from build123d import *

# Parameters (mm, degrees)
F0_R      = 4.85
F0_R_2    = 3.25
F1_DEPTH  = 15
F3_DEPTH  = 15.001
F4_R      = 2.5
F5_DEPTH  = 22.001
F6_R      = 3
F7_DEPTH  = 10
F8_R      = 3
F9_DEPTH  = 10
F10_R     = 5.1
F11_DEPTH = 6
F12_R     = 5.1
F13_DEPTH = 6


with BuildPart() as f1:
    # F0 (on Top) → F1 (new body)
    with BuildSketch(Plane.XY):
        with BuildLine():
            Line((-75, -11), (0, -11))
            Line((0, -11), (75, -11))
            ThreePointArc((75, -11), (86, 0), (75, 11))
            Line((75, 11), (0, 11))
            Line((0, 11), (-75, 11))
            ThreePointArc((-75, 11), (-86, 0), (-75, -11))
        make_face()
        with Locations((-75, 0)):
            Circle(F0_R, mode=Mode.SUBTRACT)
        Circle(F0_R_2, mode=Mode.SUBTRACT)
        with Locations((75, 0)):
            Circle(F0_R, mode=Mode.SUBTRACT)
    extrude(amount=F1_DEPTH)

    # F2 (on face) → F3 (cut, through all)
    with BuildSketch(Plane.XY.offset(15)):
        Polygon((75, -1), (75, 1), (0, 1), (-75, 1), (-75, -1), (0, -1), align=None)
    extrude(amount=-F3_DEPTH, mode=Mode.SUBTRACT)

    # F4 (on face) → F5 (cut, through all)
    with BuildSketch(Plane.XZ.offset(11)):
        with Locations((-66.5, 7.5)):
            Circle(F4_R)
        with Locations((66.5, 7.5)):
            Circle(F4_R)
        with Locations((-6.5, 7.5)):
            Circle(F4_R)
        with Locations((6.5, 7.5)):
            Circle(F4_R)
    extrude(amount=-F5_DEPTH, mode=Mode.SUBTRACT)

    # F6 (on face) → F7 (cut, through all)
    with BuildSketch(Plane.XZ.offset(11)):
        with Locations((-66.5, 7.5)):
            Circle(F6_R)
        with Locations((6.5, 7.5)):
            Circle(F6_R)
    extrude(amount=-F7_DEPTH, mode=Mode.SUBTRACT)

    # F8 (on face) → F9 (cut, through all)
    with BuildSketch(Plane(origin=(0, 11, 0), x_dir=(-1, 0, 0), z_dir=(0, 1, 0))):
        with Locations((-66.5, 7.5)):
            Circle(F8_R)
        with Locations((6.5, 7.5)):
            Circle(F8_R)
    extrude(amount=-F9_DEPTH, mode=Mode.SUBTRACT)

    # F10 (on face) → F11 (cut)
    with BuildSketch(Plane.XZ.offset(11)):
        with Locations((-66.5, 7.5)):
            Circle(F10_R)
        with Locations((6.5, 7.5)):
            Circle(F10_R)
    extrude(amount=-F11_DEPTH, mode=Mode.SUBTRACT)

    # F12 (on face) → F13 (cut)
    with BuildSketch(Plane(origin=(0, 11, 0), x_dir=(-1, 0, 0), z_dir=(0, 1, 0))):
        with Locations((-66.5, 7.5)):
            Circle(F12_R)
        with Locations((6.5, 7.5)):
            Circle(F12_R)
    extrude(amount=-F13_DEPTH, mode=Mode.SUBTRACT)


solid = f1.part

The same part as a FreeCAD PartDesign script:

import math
import FreeCAD as App
import Part
import Sketcher

V = App.Vector
Q = App.Units.Quantity

doc = App.newDocument("Part")
params = doc.addObject("Spreadsheet::Sheet", "Params")
for row, (alias, value) in enumerate([
    ("sketch1_radius", "11 mm"),
    ("sketch1_diameter", "9.7 mm"),
    ("sketch1_diameter2", "6.5 mm"),
    ("sketch1_width", "150 mm"),
    ("pad1_length", "15 mm"),
    ("sketch2_width", "150 mm"),
    ("sketch2_height", "2 mm"),
    ("sketch3_diameter", "5 mm"),
    ("sketch4_diameter", "6 mm"),
    ("pocket3_length", "10 mm"),
    ("sketch5_diameter", "6 mm"),
    ("pocket4_length", "10 mm"),
    ("sketch6_diameter", "10.2 mm"),
    ("pocket5_length", "6 mm"),
    ("sketch7_diameter", "10.2 mm"),
    ("pocket6_length", "6 mm"),
], start=1):
    params.set(f"A{row}", alias)
    params.set(f"B{row}", "=" + value)
    params.setAlias(f"B{row}", alias)

body = doc.addObject("PartDesign::Body", "Body")

# Sketch on XY plane
sketch1 = body.newObject("Sketcher::SketchObject", "Sketch")
sketch1.AttachmentSupport = (doc.getObject("XY_Plane"), [""])
sketch1.MapMode = "FlatFace"
sketch1.addGeometry(Part.LineSegment(V(-75, -11, 0), V(75, -11, 0)), False)
sketch1.addGeometry(Part.ArcOfCircle(Part.Circle(V(75, 0, 0), V(0, 0, 1), 11), math.radians(-90), math.radians(90)), False)
sketch1.addGeometry(Part.LineSegment(V(75, 11, 0), V(-75, 11, 0)), False)
sketch1.addGeometry(Part.ArcOfCircle(Part.Circle(V(-75, 0, 0), V(0, 0, 1), 11), math.radians(90), math.radians(270)), False)
sketch1.addGeometry(Part.Circle(V(-75, 0, 0), V(0, 0, 1), 4.8), False)
sketch1.addGeometry(Part.Circle(V(0, 0, 0), V(0, 0, 1), 3.2), False)
sketch1.addGeometry(Part.Circle(V(75, 0, 0), V(0, 0, 1), 4.8), False)
sketch1.addConstraint(Sketcher.Constraint("Tangent", 0, 2, 1, 1))
sketch1.addConstraint(Sketcher.Constraint("Tangent", 1, 2, 2, 1))
sketch1.addConstraint(Sketcher.Constraint("Tangent", 2, 2, 3, 1))
sketch1.addConstraint(Sketcher.Constraint("Tangent", 3, 2, 0, 1))
sketch1.addConstraint(Sketcher.Constraint("Horizontal", 0))
sketch1.addConstraint(Sketcher.Constraint("Horizontal", 2))
sketch1.addConstraint(Sketcher.Constraint("Coincident", 5, 3, -1, 1))
sketch1.addConstraint(Sketcher.Constraint("Coincident", 4, 3, 3, 3))
sketch1.addConstraint(Sketcher.Constraint("Coincident", 6, 3, 1, 3))
sketch1.addConstraint(Sketcher.Constraint("Equal", 4, 6))
sketch1.addConstraint(Sketcher.Constraint("Symmetric", 1, 3, 3, 3, -1, 1))
sketch1.addConstraint(Sketcher.Constraint("Radius", 1, Q("11 mm")))
sketch1.addConstraint(Sketcher.Constraint("Diameter", 4, Q("9.7 mm")))
sketch1.addConstraint(Sketcher.Constraint("Diameter", 5, Q("6.5 mm")))
sketch1.addConstraint(Sketcher.Constraint("DistanceX", 0, 1, 0, 2, Q("150 mm")))
sketch1.setExpression("Constraints[11]", "Params.sketch1_radius")
sketch1.setExpression("Constraints[12]", "Params.sketch1_diameter")
sketch1.setExpression("Constraints[13]", "Params.sketch1_diameter2")
sketch1.setExpression("Constraints[14]", "Params.sketch1_width")
pad1 = body.newObject("PartDesign::Pad", "Pad")
pad1.Profile = sketch1
pad1.setExpression("Length", "Params.pad1_length")

# Sketch on XY plane
sketch2 = body.newObject("Sketcher::SketchObject", "Sketch001")
sketch2.AttachmentSupport = (doc.getObject("XY_Plane"), [""])
sketch2.MapMode = "FlatFace"
sketch2.AttachmentOffset = App.Placement(V(0, 0, 15), App.Rotation())
sketch2.addGeometry(Part.LineSegment(V(75, -1, 0), V(75, 1, 0)), False)
sketch2.addGeometry(Part.LineSegment(V(75, 1, 0), V(-75, 1, 0)), False)
sketch2.addGeometry(Part.LineSegment(V(-75, 1, 0), V(-75, -1, 0)), False)
sketch2.addGeometry(Part.LineSegment(V(-75, -1, 0), V(75, -1, 0)), False)
sketch2.addConstraint(Sketcher.Constraint("Coincident", 0, 2, 1, 1))
sketch2.addConstraint(Sketcher.Constraint("Coincident", 1, 2, 2, 1))
sketch2.addConstraint(Sketcher.Constraint("Coincident", 2, 2, 3, 1))
sketch2.addConstraint(Sketcher.Constraint("Coincident", 3, 2, 0, 1))
sketch2.addConstraint(Sketcher.Constraint("Vertical", 0))
sketch2.addConstraint(Sketcher.Constraint("Horizontal", 1))
sketch2.addConstraint(Sketcher.Constraint("Vertical", 2))
sketch2.addConstraint(Sketcher.Constraint("Horizontal", 3))
sketch2.addConstraint(Sketcher.Constraint("Symmetric", 0, 2, 2, 2, -1, 1))
sketch2.addConstraint(Sketcher.Constraint("DistanceX", 1, 2, 1, 1, Q("150 mm")))
sketch2.addConstraint(Sketcher.Constraint("DistanceY", 0, 1, 0, 2, Q("2 mm")))
sketch2.setExpression("Constraints[9]", "Params.sketch2_width")
sketch2.setExpression("Constraints[10]", "Params.sketch2_height")
pocket1 = body.newObject("PartDesign::Pocket", "Pocket")
pocket1.Profile = sketch2
pocket1.Type = "ThroughAll"

# Sketch on XZ plane
sketch3 = body.newObject("Sketcher::SketchObject", "Sketch002")
sketch3.AttachmentSupport = (doc.getObject("XZ_Plane"), [""])
sketch3.MapMode = "FlatFace"
sketch3.AttachmentOffset = App.Placement(V(0, 0, 11), App.Rotation())
sketch3.addGeometry(Part.Circle(V(-66.5, 7.5, 0), V(0, 0, 1), 2.5), False)
sketch3.addGeometry(Part.Circle(V(66.5, 7.5, 0), V(0, 0, 1), 2.5), False)
sketch3.addGeometry(Part.Circle(V(-6.5, 7.5, 0), V(0, 0, 1), 2.5), False)
sketch3.addGeometry(Part.Circle(V(6.5, 7.5, 0), V(0, 0, 1), 2.5), False)
sketch3.addConstraint(Sketcher.Constraint("Equal", 0, 1))
sketch3.addConstraint(Sketcher.Constraint("Equal", 1, 2))
sketch3.addConstraint(Sketcher.Constraint("Equal", 2, 3))
sketch3.addConstraint(Sketcher.Constraint("Symmetric", 0, 3, 1, 3, -2))
sketch3.addConstraint(Sketcher.Constraint("Symmetric", 2, 3, 3, 3, -2))
sketch3.addConstraint(Sketcher.Constraint("Horizontal", 1, 3, 2, 3))
sketch3.addConstraint(Sketcher.Constraint("Diameter", 0, Q("5 mm")))
sketch3.addConstraint(Sketcher.Constraint("DistanceX", 0, 3, 1, 3, Q("133 mm")))
sketch3.addConstraint(Sketcher.Constraint("DistanceX", 0, 3, 2, 3, Q("60 mm")))
sketch3.addConstraint(Sketcher.Constraint("DistanceY", -1, 1, 0, 3, Q("7.5 mm")))
sketch3.setExpression("Constraints[6]", "Params.sketch3_diameter")
pocket2 = body.newObject("PartDesign::Pocket", "Pocket001")
pocket2.Profile = sketch3
pocket2.Type = "ThroughAll"

# Sketch on XZ plane
sketch4 = body.newObject("Sketcher::SketchObject", "Sketch003")
sketch4.AttachmentSupport = (doc.getObject("XZ_Plane"), [""])
sketch4.MapMode = "FlatFace"
sketch4.AttachmentOffset = App.Placement(V(0, 0, 11), App.Rotation())
sketch4.addGeometry(Part.Circle(V(-66.5, 7.5, 0), V(0, 0, 1), 3), False)
sketch4.addGeometry(Part.Circle(V(6.5, 7.5, 0), V(0, 0, 1), 3), False)
sketch4.addConstraint(Sketcher.Constraint("Equal", 0, 1))
sketch4.addConstraint(Sketcher.Constraint("Horizontal", 0, 3, 1, 3))
sketch4.addConstraint(Sketcher.Constraint("Diameter", 0, Q("6 mm")))
sketch4.addConstraint(Sketcher.Constraint("DistanceX", 0, 3, 1, 3, Q("73 mm")))
sketch4.addConstraint(Sketcher.Constraint("DistanceX", 0, 3, -1, 1, Q("66.5 mm")))
sketch4.addConstraint(Sketcher.Constraint("DistanceY", -1, 1, 0, 3, Q("7.5 mm")))
sketch4.setExpression("Constraints[2]", "Params.sketch4_diameter")
pocket3 = body.newObject("PartDesign::Pocket", "Pocket002")
pocket3.Profile = sketch4
pocket3.setExpression("Length", "Params.pocket3_length")

# Sketch on XZ plane
sketch5 = body.newObject("Sketcher::SketchObject", "Sketch004")
sketch5.AttachmentSupport = (doc.getObject("XZ_Plane"), [""])
sketch5.MapMode = "FlatFace"
sketch5.AttachmentOffset = App.Placement(V(0, 0, -11), App.Rotation())
sketch5.addGeometry(Part.Circle(V(66.5, 7.5, 0), V(0, 0, 1), 3), False)
sketch5.addGeometry(Part.Circle(V(-6.5, 7.5, 0), V(0, 0, 1), 3), False)
sketch5.addConstraint(Sketcher.Constraint("Equal", 0, 1))
sketch5.addConstraint(Sketcher.Constraint("Horizontal", 0, 3, 1, 3))
sketch5.addConstraint(Sketcher.Constraint("Diameter", 0, Q("6 mm")))
sketch5.addConstraint(Sketcher.Constraint("DistanceX", 1, 3, 0, 3, Q("73 mm")))
sketch5.addConstraint(Sketcher.Constraint("DistanceX", -1, 1, 0, 3, Q("66.5 mm")))
sketch5.addConstraint(Sketcher.Constraint("DistanceY", -1, 1, 0, 3, Q("7.5 mm")))
sketch5.setExpression("Constraints[2]", "Params.sketch5_diameter")
pocket4 = body.newObject("PartDesign::Pocket", "Pocket003")
pocket4.Profile = sketch5
pocket4.setExpression("Length", "Params.pocket4_length")
pocket4.Reversed = True

# Sketch on XZ plane
sketch6 = body.newObject("Sketcher::SketchObject", "Sketch005")
sketch6.AttachmentSupport = (doc.getObject("XZ_Plane"), [""])
sketch6.MapMode = "FlatFace"
sketch6.AttachmentOffset = App.Placement(V(0, 0, 11), App.Rotation())
sketch6.addGeometry(Part.Circle(V(-66, 8, 0), V(0, 0, 1), 5), False)
sketch6.addGeometry(Part.Circle(V(6, 8, 0), V(0, 0, 1), 5), False)
sketch6.addConstraint(Sketcher.Constraint("Equal", 0, 1))
sketch6.addConstraint(Sketcher.Constraint("Horizontal", 0, 3, 1, 3))
sketch6.addConstraint(Sketcher.Constraint("Diameter", 0, Q("10.2 mm")))
sketch6.addConstraint(Sketcher.Constraint("DistanceX", 0, 3, 1, 3, Q("73 mm")))
sketch6.addConstraint(Sketcher.Constraint("DistanceX", 0, 3, -1, 1, Q("66.5 mm")))
sketch6.addConstraint(Sketcher.Constraint("DistanceY", -1, 1, 0, 3, Q("7.5 mm")))
sketch6.setExpression("Constraints[2]", "Params.sketch6_diameter")
pocket5 = body.newObject("PartDesign::Pocket", "Pocket004")
pocket5.Profile = sketch6
pocket5.setExpression("Length", "Params.pocket5_length")

# Sketch on XZ plane
sketch7 = body.newObject("Sketcher::SketchObject", "Sketch006")
sketch7.AttachmentSupport = (doc.getObject("XZ_Plane"), [""])
sketch7.MapMode = "FlatFace"
sketch7.AttachmentOffset = App.Placement(V(0, 0, -11), App.Rotation())
sketch7.addGeometry(Part.Circle(V(66, 8, 0), V(0, 0, 1), 5), False)
sketch7.addGeometry(Part.Circle(V(-6, 8, 0), V(0, 0, 1), 5), False)
sketch7.addConstraint(Sketcher.Constraint("Equal", 0, 1))
sketch7.addConstraint(Sketcher.Constraint("Horizontal", 0, 3, 1, 3))
sketch7.addConstraint(Sketcher.Constraint("Diameter", 0, Q("10.2 mm")))
sketch7.addConstraint(Sketcher.Constraint("DistanceX", 1, 3, 0, 3, Q("73 mm")))
sketch7.addConstraint(Sketcher.Constraint("DistanceX", -1, 1, 0, 3, Q("66.5 mm")))
sketch7.addConstraint(Sketcher.Constraint("DistanceY", -1, 1, 0, 3, Q("7.5 mm")))
sketch7.setExpression("Constraints[2]", "Params.sketch7_diameter")
pocket6 = body.newObject("PartDesign::Pocket", "Pocket005")
pocket6.Profile = sketch7
pocket6.setExpression("Length", "Params.pocket6_length")
pocket6.Reversed = True

doc.recompute()
